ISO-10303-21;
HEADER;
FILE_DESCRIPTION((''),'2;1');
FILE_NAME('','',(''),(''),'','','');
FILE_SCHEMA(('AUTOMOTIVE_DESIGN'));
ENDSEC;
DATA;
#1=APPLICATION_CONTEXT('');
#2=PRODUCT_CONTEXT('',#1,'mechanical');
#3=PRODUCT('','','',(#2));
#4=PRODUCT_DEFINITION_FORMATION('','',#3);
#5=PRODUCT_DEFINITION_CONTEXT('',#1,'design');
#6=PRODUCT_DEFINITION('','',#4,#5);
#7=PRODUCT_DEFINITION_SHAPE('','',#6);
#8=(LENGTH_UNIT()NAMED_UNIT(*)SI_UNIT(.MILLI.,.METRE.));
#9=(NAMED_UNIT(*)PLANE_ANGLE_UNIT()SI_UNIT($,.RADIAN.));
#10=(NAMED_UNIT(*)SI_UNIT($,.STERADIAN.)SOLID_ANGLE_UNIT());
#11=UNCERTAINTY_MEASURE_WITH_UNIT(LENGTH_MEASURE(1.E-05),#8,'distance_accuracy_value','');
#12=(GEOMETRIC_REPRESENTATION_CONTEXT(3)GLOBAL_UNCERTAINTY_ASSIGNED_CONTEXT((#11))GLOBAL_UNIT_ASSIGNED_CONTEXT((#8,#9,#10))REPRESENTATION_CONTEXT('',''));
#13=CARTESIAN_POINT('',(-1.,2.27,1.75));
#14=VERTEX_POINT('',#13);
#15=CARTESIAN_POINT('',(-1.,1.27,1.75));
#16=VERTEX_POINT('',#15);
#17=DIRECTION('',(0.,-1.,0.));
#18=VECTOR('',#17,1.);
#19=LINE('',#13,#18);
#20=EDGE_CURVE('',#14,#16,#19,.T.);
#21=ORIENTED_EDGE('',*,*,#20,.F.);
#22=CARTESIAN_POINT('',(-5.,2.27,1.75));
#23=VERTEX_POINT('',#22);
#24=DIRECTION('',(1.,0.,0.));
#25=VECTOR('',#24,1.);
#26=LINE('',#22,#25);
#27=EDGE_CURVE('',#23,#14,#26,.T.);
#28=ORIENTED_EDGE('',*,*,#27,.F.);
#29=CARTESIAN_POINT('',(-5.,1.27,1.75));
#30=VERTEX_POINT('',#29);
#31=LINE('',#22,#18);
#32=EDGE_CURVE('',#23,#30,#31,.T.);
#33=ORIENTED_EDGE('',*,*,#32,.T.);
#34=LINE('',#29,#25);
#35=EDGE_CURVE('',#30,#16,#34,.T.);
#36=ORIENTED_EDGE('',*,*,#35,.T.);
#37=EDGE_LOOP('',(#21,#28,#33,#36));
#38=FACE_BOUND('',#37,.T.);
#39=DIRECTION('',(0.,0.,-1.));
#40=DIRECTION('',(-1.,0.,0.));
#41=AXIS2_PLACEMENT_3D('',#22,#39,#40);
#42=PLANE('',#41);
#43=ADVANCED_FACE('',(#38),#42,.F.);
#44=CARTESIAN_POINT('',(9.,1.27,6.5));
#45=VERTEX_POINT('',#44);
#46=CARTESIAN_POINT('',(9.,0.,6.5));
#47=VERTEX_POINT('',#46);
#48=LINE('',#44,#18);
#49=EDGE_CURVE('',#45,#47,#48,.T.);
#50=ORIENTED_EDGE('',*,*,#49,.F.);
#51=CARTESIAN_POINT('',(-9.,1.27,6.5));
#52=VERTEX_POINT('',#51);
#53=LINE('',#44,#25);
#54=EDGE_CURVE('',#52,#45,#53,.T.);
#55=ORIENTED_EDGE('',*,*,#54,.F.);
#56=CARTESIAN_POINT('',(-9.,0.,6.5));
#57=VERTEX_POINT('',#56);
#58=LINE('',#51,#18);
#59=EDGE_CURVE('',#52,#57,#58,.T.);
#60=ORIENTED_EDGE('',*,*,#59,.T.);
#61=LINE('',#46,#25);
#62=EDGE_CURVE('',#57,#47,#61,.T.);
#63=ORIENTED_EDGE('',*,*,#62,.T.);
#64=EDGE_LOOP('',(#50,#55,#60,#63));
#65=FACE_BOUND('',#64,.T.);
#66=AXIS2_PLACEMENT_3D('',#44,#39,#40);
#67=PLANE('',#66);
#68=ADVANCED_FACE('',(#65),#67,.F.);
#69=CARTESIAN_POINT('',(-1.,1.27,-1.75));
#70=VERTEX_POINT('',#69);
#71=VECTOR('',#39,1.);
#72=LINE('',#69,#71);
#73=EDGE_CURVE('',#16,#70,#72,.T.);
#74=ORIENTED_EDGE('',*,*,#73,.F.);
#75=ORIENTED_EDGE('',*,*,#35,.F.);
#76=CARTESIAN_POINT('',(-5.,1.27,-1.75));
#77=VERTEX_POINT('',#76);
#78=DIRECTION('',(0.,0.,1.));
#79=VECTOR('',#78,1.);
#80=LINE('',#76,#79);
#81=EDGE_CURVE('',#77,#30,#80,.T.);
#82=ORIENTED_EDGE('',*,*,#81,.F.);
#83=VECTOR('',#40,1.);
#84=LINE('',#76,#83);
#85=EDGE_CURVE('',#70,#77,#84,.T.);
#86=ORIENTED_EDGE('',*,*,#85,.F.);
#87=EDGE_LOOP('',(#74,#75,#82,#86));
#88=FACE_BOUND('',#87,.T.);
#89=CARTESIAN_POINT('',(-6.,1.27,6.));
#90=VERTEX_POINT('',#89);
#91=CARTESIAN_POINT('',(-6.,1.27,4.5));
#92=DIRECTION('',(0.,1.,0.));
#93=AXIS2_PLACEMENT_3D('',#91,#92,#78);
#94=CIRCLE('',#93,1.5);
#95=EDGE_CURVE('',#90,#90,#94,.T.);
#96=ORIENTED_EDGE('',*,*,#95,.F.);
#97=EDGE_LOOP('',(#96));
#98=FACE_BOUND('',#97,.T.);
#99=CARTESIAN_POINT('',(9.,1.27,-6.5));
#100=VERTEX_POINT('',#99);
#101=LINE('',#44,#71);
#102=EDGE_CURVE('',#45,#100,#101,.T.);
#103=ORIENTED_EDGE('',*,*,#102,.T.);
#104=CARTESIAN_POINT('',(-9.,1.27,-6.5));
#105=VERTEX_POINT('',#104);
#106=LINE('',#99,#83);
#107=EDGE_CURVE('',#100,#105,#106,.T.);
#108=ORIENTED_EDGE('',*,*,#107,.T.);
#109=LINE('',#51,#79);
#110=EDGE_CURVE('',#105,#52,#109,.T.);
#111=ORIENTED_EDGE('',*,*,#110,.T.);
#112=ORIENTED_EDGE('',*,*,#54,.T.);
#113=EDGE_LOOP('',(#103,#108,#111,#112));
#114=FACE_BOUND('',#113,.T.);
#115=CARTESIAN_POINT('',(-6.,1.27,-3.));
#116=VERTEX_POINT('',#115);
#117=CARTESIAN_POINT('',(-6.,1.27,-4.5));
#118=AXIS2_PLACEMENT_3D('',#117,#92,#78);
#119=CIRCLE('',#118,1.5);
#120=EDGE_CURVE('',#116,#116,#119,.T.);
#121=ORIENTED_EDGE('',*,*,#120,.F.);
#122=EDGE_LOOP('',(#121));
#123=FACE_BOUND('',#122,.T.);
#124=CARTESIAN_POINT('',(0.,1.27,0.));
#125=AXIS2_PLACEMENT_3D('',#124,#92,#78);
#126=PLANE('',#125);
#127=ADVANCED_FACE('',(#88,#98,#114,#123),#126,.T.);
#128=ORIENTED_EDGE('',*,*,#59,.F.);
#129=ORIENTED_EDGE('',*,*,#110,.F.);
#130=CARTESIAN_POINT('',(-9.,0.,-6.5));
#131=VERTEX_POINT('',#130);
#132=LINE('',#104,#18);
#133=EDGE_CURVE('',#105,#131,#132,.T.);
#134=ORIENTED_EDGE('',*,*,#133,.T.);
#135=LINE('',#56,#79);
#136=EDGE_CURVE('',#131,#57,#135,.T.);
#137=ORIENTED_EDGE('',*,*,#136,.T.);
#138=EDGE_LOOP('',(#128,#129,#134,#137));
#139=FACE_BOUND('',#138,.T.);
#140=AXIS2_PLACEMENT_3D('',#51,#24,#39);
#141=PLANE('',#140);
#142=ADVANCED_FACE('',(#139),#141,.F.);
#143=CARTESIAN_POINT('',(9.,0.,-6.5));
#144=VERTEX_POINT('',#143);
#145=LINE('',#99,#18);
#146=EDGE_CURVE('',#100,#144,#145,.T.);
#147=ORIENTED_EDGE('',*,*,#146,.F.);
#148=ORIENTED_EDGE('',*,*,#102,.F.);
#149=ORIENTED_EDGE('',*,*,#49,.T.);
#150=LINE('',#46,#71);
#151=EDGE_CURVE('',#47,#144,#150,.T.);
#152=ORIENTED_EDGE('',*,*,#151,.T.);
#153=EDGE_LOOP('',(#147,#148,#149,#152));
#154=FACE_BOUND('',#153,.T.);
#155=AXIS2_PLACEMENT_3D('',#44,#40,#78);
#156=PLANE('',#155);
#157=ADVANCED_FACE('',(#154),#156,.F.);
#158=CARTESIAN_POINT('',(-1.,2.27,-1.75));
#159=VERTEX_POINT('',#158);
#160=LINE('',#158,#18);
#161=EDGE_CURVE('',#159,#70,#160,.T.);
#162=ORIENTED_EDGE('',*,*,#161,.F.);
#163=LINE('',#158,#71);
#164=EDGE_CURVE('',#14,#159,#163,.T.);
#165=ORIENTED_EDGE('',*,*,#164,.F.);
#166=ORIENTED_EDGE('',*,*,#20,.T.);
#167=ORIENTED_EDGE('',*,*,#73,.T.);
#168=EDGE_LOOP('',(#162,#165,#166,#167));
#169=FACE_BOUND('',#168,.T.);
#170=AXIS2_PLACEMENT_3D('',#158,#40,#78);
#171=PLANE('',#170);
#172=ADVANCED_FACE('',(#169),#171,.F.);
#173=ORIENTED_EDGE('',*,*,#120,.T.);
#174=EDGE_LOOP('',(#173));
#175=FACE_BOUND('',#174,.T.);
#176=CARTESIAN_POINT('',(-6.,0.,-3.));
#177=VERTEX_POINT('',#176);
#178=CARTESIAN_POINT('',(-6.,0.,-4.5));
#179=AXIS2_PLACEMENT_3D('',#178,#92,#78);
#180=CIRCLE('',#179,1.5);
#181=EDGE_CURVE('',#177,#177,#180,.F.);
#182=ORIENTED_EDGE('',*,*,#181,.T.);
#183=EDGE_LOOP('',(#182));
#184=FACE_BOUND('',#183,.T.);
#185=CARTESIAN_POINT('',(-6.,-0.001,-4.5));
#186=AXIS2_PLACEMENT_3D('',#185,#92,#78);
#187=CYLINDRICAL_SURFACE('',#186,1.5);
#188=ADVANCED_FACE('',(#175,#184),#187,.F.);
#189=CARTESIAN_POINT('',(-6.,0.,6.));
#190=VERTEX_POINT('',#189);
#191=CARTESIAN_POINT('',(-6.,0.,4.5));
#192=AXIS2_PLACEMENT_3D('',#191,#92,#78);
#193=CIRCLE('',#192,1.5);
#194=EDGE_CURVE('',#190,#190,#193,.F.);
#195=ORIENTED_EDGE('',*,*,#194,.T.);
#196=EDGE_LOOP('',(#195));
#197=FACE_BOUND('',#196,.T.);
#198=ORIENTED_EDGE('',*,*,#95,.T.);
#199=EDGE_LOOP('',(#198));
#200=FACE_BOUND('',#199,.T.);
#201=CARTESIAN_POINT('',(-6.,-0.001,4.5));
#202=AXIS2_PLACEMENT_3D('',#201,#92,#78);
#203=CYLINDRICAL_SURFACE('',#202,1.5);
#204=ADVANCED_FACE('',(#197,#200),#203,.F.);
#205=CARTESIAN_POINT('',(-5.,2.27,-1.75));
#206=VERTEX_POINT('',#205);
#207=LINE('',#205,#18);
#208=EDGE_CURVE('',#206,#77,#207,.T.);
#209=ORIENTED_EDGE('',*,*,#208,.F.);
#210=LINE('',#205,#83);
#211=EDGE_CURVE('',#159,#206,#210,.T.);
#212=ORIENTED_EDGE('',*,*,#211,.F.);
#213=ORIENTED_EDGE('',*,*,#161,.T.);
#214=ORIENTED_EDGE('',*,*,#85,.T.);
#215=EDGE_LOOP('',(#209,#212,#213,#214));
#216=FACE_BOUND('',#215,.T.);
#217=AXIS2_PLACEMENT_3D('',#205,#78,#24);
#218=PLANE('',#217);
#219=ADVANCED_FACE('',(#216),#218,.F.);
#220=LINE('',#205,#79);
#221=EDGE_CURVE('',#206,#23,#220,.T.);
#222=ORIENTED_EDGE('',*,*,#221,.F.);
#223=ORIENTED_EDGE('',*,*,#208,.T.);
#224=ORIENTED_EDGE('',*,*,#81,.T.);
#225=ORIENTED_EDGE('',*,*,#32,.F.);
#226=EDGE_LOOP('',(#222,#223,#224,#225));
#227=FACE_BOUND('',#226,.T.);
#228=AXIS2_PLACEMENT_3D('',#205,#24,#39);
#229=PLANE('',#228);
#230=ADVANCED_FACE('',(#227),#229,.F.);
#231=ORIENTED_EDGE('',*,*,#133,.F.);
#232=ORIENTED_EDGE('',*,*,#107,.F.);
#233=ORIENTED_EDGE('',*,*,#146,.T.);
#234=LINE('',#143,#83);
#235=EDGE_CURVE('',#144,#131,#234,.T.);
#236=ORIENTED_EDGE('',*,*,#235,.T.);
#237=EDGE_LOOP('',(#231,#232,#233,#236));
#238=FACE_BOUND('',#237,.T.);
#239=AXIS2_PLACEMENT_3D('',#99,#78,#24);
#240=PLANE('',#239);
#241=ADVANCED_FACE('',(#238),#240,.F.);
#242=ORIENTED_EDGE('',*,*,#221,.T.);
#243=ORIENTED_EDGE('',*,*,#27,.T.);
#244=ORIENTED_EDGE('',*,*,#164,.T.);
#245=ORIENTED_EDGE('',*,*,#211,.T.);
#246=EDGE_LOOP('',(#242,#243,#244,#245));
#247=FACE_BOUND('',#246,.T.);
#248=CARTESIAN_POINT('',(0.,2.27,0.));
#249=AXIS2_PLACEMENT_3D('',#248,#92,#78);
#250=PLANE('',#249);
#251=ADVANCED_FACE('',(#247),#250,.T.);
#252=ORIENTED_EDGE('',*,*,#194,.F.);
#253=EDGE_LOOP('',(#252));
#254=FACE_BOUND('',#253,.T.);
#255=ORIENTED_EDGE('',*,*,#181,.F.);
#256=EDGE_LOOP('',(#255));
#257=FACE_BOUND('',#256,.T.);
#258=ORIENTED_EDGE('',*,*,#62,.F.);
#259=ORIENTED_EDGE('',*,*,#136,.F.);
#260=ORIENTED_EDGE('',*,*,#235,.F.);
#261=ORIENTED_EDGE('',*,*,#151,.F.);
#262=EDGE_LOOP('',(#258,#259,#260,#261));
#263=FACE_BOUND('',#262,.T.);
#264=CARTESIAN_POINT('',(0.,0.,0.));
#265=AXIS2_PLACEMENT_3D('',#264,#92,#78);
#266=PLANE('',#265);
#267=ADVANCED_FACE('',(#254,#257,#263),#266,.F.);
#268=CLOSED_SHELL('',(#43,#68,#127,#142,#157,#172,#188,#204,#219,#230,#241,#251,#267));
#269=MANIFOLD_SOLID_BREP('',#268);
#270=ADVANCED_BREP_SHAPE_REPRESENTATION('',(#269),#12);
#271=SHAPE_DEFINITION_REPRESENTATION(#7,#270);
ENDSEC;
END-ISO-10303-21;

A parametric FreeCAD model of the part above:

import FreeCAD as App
import Part
import Sketcher


def add_polygon(sketch, points):
    """Adds a closed chain of lines whose ends are joined by coincident constraints."""
    first, n = sketch.GeometryCount, len(points)
    for a, b in zip(points, points[1:] + points[:1]):
        sketch.addGeometry(Part.LineSegment(App.Vector(*a, 0), App.Vector(*b, 0)), False)
    for i in range(n):
        sketch.addConstraint(Sketcher.Constraint("Coincident", first + i, 2, first + (i + 1) % n, 1))

doc = App.newDocument("Part")
body = doc.addObject("PartDesign::Body", "Body")

sketch1 = body.newObject("Sketcher::SketchObject", "Sketch")
sketch1.AttachmentSupport = (doc.getObject("XZ_Plane"), [""])
sketch1.MapMode = "FlatFace"
add_polygon(sketch1, [(-9, -6), (-9, 6), (9, 6), (9, -6)])
sketch1.addConstraint([
    Sketcher.Constraint("Vertical", 0),
    Sketcher.Constraint("Horizontal", 1),
    Sketcher.Constraint("Vertical", 2),
    Sketcher.Constraint("Horizontal", 3),
    Sketcher.Constraint("Symmetric", 0, 2, 2, 2, -1, 1),
    Sketcher.Constraint("DistanceX", 1, 1, 1, 2, 18.0),
    Sketcher.Constraint("DistanceY", 0, 1, 0, 2, 13.0),
])
pad1 = body.newObject("PartDesign::Pad", "Pad")
pad1.Profile = sketch1
pad1.Length = 1.27
pad1.Reversed = True

sketch2 = body.newObject("Sketcher::SketchObject", "Sketch001")
sketch2.AttachmentSupport = (doc.getObject("XZ_Plane"), [""])
sketch2.MapMode = "FlatFace"
sketch2.AttachmentOffset = App.Placement(App.Vector(0, 0, -1.27), App.Rotation())
sketch2.addGeometry(Part.Circle(App.Vector(-6, -4.5, 0), App.Vector(0, 0, 1), 1.5), False)
sketch2.addConstraint([
    Sketcher.Constraint("Diameter", 0, 3.0),
    Sketcher.Constraint("DistanceX", 0, 3, -1, 1, 6.0),
    Sketcher.Constraint("DistanceY", 0, 3, -1, 1, 4.5),
])
pocket1 = body.newObject("PartDesign::Pocket", "Pocket")
pocket1.Profile = sketch2
pocket1.Type = "UpToFirst"
pocket1.Reversed = True

sketch3 = body.newObject("Sketcher::SketchObject", "Sketch002")
sketch3.AttachmentSupport = (doc.getObject("XZ_Plane"), [""])
sketch3.MapMode = "FlatFace"
sketch3.AttachmentOffset = App.Placement(App.Vector(0, 0, -1.27), App.Rotation())
sketch3.addGeometry(Part.Circle(App.Vector(-6, 4.5, 0), App.Vector(0, 0, 1), 1.5), False)
sketch3.addConstraint([
    Sketcher.Constraint("Diameter", 0, 3.0),
    Sketcher.Constraint("DistanceX", 0, 3, -1, 1, 6.0),
    Sketcher.Constraint("DistanceY", -1, 1, 0, 3, 4.5),
])
pocket2 = body.newObject("PartDesign::Pocket", "Pocket001")
pocket2.Profile = sketch3
pocket2.Type = "UpToFirst"
pocket2.Reversed = True

sketch4 = body.newObject("Sketcher::SketchObject", "Sketch003")
sketch4.AttachmentSupport = (doc.getObject("XZ_Plane"), [""])
sketch4.MapMode = "FlatFace"
sketch4.AttachmentOffset = App.Placement(App.Vector(0, 0, -1.27), App.Rotation())
add_polygon(sketch4, [(-5, -1.8), (-5, 1.8), (-1, 1.8), (-1, -1.8)])
sketch4.addConstraint([
    Sketcher.Constraint("Vertical", 0),
    Sketcher.Constraint("Horizontal", 1),
    Sketcher.Constraint("Vertical", 2),
    Sketcher.Constraint("Horizontal", 3),
    Sketcher.Constraint("DistanceX", 1, 1, 1, 2, 4.0),
    Sketcher.Constraint("DistanceY", 0, 1, 0, 2, 3.5),
    Sketcher.Constraint("DistanceX", 0, 2, -1, 1, 5.0),
    Sketcher.Constraint("DistanceY", -1, 1, 0, 2, 1.75),
])
pad2 = body.newObject("PartDesign::Pad", "Pad001")
pad2.Profile = sketch4
pad2.Length = 1
pad2.Reversed = True

doc.recompute()
